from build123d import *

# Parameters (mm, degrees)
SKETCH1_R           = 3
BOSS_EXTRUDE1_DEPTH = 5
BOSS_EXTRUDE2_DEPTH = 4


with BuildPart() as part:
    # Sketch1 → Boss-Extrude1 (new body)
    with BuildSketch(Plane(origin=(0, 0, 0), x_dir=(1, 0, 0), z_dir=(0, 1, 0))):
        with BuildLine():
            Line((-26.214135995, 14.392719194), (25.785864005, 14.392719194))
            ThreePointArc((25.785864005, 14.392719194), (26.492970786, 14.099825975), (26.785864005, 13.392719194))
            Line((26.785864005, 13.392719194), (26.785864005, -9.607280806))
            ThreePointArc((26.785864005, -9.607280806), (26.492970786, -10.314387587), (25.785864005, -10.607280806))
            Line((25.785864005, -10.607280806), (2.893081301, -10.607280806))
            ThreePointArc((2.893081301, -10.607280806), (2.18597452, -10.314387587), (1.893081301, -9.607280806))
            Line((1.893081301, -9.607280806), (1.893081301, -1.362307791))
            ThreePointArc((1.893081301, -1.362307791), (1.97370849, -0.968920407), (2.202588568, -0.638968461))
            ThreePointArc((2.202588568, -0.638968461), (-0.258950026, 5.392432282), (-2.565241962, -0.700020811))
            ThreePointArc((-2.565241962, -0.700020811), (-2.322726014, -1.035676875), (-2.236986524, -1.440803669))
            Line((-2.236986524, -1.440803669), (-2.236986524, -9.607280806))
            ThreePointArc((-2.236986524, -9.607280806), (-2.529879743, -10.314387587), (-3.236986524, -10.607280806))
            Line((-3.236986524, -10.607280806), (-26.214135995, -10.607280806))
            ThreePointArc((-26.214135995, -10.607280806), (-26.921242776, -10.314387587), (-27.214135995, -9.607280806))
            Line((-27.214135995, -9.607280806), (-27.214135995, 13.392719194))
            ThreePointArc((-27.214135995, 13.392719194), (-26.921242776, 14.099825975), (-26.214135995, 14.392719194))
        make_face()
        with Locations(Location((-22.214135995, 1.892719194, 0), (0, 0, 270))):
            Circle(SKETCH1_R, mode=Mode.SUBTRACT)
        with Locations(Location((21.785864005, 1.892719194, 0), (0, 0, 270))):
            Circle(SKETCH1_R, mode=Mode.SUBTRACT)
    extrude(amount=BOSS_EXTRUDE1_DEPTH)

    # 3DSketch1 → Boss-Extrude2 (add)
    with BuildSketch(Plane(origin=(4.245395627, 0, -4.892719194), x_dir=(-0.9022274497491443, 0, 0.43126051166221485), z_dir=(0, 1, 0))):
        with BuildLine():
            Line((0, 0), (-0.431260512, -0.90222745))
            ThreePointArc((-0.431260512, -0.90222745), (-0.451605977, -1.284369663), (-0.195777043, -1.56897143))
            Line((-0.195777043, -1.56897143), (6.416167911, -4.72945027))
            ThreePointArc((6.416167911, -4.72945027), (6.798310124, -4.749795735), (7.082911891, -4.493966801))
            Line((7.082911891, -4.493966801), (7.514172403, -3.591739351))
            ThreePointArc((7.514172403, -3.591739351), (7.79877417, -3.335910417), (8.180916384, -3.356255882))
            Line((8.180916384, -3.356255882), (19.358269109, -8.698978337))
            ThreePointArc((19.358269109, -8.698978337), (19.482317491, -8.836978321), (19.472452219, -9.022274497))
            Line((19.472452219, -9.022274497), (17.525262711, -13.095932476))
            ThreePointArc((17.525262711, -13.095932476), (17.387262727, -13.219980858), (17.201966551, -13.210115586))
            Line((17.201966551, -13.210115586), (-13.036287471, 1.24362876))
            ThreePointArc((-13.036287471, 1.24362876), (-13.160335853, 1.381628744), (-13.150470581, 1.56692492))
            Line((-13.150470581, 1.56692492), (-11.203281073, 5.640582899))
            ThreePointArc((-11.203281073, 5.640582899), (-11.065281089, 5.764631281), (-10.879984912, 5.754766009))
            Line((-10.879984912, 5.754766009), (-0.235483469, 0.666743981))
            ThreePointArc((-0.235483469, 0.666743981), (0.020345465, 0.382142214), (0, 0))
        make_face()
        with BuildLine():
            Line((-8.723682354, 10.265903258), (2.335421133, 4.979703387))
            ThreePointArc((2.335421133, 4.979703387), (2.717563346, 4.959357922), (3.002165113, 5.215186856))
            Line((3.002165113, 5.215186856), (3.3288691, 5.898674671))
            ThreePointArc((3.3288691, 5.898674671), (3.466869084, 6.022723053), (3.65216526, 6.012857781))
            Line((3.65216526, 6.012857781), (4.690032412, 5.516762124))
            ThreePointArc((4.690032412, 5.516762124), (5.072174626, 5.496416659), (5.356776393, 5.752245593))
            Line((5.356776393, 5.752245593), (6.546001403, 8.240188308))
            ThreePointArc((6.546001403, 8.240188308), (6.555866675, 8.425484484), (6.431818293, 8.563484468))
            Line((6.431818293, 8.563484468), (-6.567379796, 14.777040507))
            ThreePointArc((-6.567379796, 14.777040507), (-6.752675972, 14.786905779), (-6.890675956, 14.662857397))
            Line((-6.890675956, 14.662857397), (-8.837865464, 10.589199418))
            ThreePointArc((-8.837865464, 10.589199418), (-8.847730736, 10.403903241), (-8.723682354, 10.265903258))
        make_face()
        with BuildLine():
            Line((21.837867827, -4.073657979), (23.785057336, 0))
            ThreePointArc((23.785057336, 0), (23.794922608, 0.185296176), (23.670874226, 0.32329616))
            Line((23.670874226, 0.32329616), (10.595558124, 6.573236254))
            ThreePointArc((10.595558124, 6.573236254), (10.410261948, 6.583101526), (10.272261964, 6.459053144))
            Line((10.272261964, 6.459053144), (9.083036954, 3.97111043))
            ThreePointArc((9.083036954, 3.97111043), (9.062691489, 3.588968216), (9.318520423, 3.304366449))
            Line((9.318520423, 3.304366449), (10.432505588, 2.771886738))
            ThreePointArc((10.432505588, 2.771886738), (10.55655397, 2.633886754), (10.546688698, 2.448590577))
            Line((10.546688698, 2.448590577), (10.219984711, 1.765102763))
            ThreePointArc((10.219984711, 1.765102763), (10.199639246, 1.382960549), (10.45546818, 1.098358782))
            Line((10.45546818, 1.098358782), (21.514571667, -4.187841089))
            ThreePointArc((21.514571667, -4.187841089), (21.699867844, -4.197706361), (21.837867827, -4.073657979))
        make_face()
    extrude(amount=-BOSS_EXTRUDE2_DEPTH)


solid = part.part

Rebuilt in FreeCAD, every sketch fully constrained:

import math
import FreeCAD as App
import Part
import Sketcher

V = App.Vector
Q = App.Units.Quantity

doc = App.newDocument("Part")
body = doc.addObject("PartDesign::Body", "Body")

sketch1 = body.newObject("Sketcher::SketchObject", "Sketch")
sketch1.AttachmentSupport = (doc.getObject("XZ_Plane"), [""])
sketch1.MapMode = "FlatFace"
sketch1.addGeometry([
    Part.LineSegment(V(25.8, -14.4, 0), V(-26.2, -14.4, 0)),
    Part.ArcOfCircle(Part.Circle(V(-26.2, -13.4, 0), V(0, 0, 1), 1), math.radians(-180), math.radians(-90)),
    Part.LineSegment(V(-27.2, -13.4, 0), V(-27.2, 9.6, 0)),
    Part.ArcOfCircle(Part.Circle(V(-26.2, 9.6, 0), V(0, 0, 1), 1), math.radians(90), math.radians(180)),
    Part.LineSegment(V(-26.2, 10.6, 0), V(-3.2, 10.6, 0)),
    Part.ArcOfCircle(Part.Circle(V(-3.2, 9.6, 0), V(0, 0, 1), 1), math.radians(0), math.radians(90)),
    Part.LineSegment(V(-2.2, 9.6, 0), V(-2.2, 1.4, 0)),
    Part.ArcOfCircle(Part.Circle(V(-3.2, 1.4, 0), V(0, 0, 1), 1), math.radians(-48), math.radians(0)),
    Part.ArcOfCircle(Part.Circle(V(-0.2, -1.9, 0), V(0, 0, 1), 3.5), math.radians(132), math.radians(406)),
    Part.ArcOfCircle(Part.Circle(V(2.9, 1.4, 0), V(0, 0, 1), 1), math.radians(-180), math.radians(-134)),
    Part.LineSegment(V(1.9, 1.4, 0), V(1.9, 9.6, 0)),
    Part.ArcOfCircle(Part.Circle(V(2.9, 9.6, 0), V(0, 0, 1), 1), math.radians(90), math.radians(180)),
    Part.LineSegment(V(2.9, 10.6, 0), V(25.8, 10.6, 0)),
    Part.ArcOfCircle(Part.Circle(V(25.8, 9.6, 0), V(0, 0, 1), 1), math.radians(0), math.radians(90)),
    Part.LineSegment(V(26.8, 9.6, 0), V(26.8, -13.4, 0)),
    Part.ArcOfCircle(Part.Circle(V(25.8, -13.4, 0), V(0, 0, 1), 1), math.radians(-90), math.radians(0)),
    Part.Circle(V(21.8, -1.9, 0), V(0, 0, 1), 3),
    Part.Circle(V(-22.2, -1.9, 0), V(0, 0, 1), 3),
], False)
sketch1.addConstraint([
    Sketcher.Constraint("Tangent", 0, 2, 1, 2),
    Sketcher.Constraint("Tangent", 1, 1, 2, 1),
    Sketcher.Constraint("Tangent", 2, 2, 3, 2),
    Sketcher.Constraint("Tangent", 3, 1, 4, 1),
    Sketcher.Constraint("Tangent", 4, 2, 5, 2),
    Sketcher.Constraint("Tangent", 5, 1, 6, 1),
    Sketcher.Constraint("Tangent", 6, 2, 7, 2),
    Sketcher.Constraint("Tangent", 7, 1, 8, 1),
    Sketcher.Constraint("Tangent", 8, 2, 9, 2),
    Sketcher.Constraint("Tangent", 9, 1, 10, 1),
    Sketcher.Constraint("Tangent", 10, 2, 11, 2),
    Sketcher.Constraint("Tangent", 11, 1, 12, 1),
    Sketcher.Constraint("Tangent", 12, 2, 13, 2),
    Sketcher.Constraint("Tangent", 13, 1, 14, 1),
    Sketcher.Constraint("Tangent", 14, 2, 15, 2),
    Sketcher.Constraint("Tangent", 15, 1, 0, 1),
    Sketcher.Constraint("Horizontal", 0),
    Sketcher.Constraint("Vertical", 2),
    Sketcher.Constraint("Horizontal", 4),
    Sketcher.Constraint("Vertical", 6),
    Sketcher.Constraint("Vertical", 10),
    Sketcher.Constraint("Horizontal", 12),
    Sketcher.Constraint("Vertical", 14),
    Sketcher.Constraint("Equal", 1, 3),
    Sketcher.Constraint("Equal", 3, 5),
    Sketcher.Constraint("Equal", 5, 7),
    Sketcher.Constraint("Equal", 7, 9),
    Sketcher.Constraint("Equal", 9, 11),
    Sketcher.Constraint("Equal", 11, 13),
    Sketcher.Constraint("Equal", 13, 15),
    Sketcher.Constraint("Equal", 16, 17),
    Sketcher.Constraint("Horizontal", 5, 3, 11, 3),
    Sketcher.Constraint("Horizontal", 8, 3, 16, 3),
    Sketcher.Constraint("Horizontal", 16, 3, 17, 3),
    Sketcher.Constraint("Diameter", 16, Q("6 mm")),
    Sketcher.Constraint("Radius", 1, Q("1 mm")),
    Sketcher.Constraint("Radius", 8, Q("3.5 mm")),
    Sketcher.Constraint("DistanceX", 0, 2, 0, 1, Q("52 mm")),
    Sketcher.Constraint("DistanceY", 2, 1, 2, 2, Q("23 mm")),
    Sketcher.Constraint("DistanceX", 1, 3, 8, 3, Q("26 mm")),
    Sketcher.Constraint("DistanceX", 16, 3, 13, 3, Q("4 mm")),
    Sketcher.Constraint("DistanceX", 1, 3, 17, 3, Q("4 mm")),
    Sketcher.Constraint("DistanceY", 8, 3, 5, 3, Q("11.5 mm")),
    Sketcher.Constraint("DistanceX", 4, 1, 4, 2, Q("22.977149 mm")),
    Sketcher.Constraint("DistanceX", 12, 1, 12, 2, Q("22.892783 mm")),
    Sketcher.Constraint("DistanceY", 1, 3, -1, 1, Q("13.392719 mm")),
    Sketcher.Constraint("DistanceX", -1, 1, 9, 3, Q("2.893081 mm")),
])
pad1 = body.newObject("PartDesign::Pad", "Pad")
pad1.Profile = sketch1
pad1.Length = 5
pad1.Reversed = True

sketch2 = body.newObject("Sketcher::SketchObject", "Sketch001")
sketch2.AttachmentSupport = (doc.getObject("XZ_Plane"), [""])
sketch2.MapMode = "FlatFace"
sketch2.addGeometry([
    Part.LineSegment(V(4.25, -5.89, 0), V(4.25, -4.89, 0)),
    Part.ArcOfCircle(Part.Circle(V(4.75, -4.89, 0), V(0, 0, 1), 0.5), math.radians(90), math.radians(180)),
    Part.LineSegment(V(4.75, -4.39, 0), V(16.54, -4.39, 0)),
    Part.ArcOfCircle(Part.Circle(V(16.54, -4.64, 0), V(0, 0, 1), 0.24), math.radians(0), math.radians(90)),
    Part.LineSegment(V(16.79, -4.64, 0), V(16.79, -9.15, 0)),
    Part.ArcOfCircle(Part.Circle(V(16.54, -9.15, 0), V(0, 0, 1), 0.24), math.radians(-90), math.radians(0)),
    Part.LineSegment(V(16.54, -9.39, 0), V(-16.97, -9.39, 0)),
    Part.ArcOfCircle(Part.Circle(V(-16.97, -9.15, 0), V(0, 0, 1), 0.24), math.radians(-180), math.radians(-90)),
    Part.LineSegment(V(-17.21, -9.15, 0), V(-17.21, -4.64, 0)),
    Part.ArcOfCircle(Part.Circle(V(-16.97, -4.64, 0), V(0, 0, 1), 0.24), math.radians(90), math.radians(180)),
    Part.LineSegment(V(-16.97, -4.39, 0), V(-4.58, -4.39, 0)),
    Part.ArcOfCircle(Part.Circle(V(-4.58, -4.89, 0), V(0, 0, 1), 0.5), math.radians(0), math.radians(90)),
    Part.LineSegment(V(-4.08, -4.89, 0), V(-4.08, -5.89, 0)),
    Part.ArcOfCircle(Part.Circle(V(-3.58, -5.89, 0), V(0, 0, 1), 0.5), math.radians(180), math.radians(270)),
    Part.LineSegment(V(-3.58, -6.39, 0), V(3.75, -6.39, 0)),
    Part.ArcOfCircle(Part.Circle(V(3.75, -5.89, 0), V(0, 0, 1), 0.5), math.radians(-90), math.radians(0)),
    Part.LineSegment(V(16.54, 0.61, 0), V(4.29, 0.61, 0)),
    Part.ArcOfCircle(Part.Circle(V(4.29, 1.11, 0), V(0, 0, 1), 0.5), math.radians(180), math.radians(270)),
    Part.LineSegment(V(3.79, 1.11, 0), V(3.79, 1.86, 0)),
    Part.ArcOfCircle(Part.Circle(V(3.54, 1.86, 0), V(0, 0, 1), 0.24), math.radians(0), math.radians(90)),
    Part.LineSegment(V(3.54, 2.11, 0), V(2.39, 2.11, 0)),
    Part.ArcOfCircle(Part.Circle(V(2.39, 2.61, 0), V(0, 0, 1), 0.5), math.radians(-180), math.radians(-90)),
    Part.LineSegment(V(1.89, 2.61, 0), V(1.89, 5.36, 0)),
    Part.ArcOfCircle(Part.Circle(V(2.14, 5.36, 0), V(0, 0, 1), 0.24), math.radians(90), math.radians(180)),
    Part.LineSegment(V(2.14, 5.61, 0), V(16.54, 5.61, 0)),
    Part.ArcOfCircle(Part.Circle(V(16.54, 5.36, 0), V(0, 0, 1), 0.24), math.radians(0), math.radians(90)),
    Part.LineSegment(V(16.79, 5.36, 0), V(16.79, 0.85, 0)),
    Part.ArcOfCircle(Part.Circle(V(16.54, 0.85, 0), V(0, 0, 1), 0.24), math.radians(-90), math.radians(0)),
    Part.LineSegment(V(-17.21, 0.85, 0), V(-17.21, 5.36, 0)),
    Part.ArcOfCircle(Part.Circle(V(-16.97, 5.36, 0), V(0, 0, 1), 0.24), math.radians(90), math.radians(180)),
    Part.LineSegment(V(-16.97, 5.61, 0), V(-2.48, 5.61, 0)),
    Part.ArcOfCircle(Part.Circle(V(-2.48, 5.36, 0), V(0, 0, 1), 0.24), math.radians(0), math.radians(90)),
    Part.LineSegment(V(-2.24, 5.36, 0), V(-2.24, 2.61, 0)),
    Part.ArcOfCircle(Part.Circle(V(-2.74, 2.61, 0), V(0, 0, 1), 0.5), math.radians(-90), math.radians(0)),
    Part.LineSegment(V(-2.74, 2.11, 0), V(-3.97, 2.11, 0)),
    Part.ArcOfCircle(Part.Circle(V(-3.97, 1.86, 0), V(0, 0, 1), 0.24), math.radians(90), math.radians(180)),
    Part.LineSegment(V(-4.21, 1.86, 0), V(-4.21, 1.11, 0)),
    Part.ArcOfCircle(Part.Circle(V(-4.71, 1.11, 0), V(0, 0, 1), 0.5), math.radians(-90), math.radians(0)),
    Part.LineSegment(V(-4.71, 0.61, 0), V(-16.97, 0.61, 0)),
    Part.ArcOfCircle(Part.Circle(V(-16.97, 0.85, 0), V(0, 0, 1), 0.24), math.radians(180), math.radians(270)),
], False)
sketch2.addConstraint([
    Sketcher.Constraint("Tangent", 0, 2, 1, 2),
    Sketcher.Constraint("Tangent", 1, 1, 2, 1),
    Sketcher.Constraint("Tangent", 2, 2, 3, 2),
    Sketcher.Constraint("Tangent", 3, 1, 4, 1),
    Sketcher.Constraint("Tangent", 4, 2, 5, 2),
    Sketcher.Constraint("Tangent", 5, 1, 6, 1),
    Sketcher.Constraint("Tangent", 6, 2, 7, 2),
    Sketcher.Constraint("Tangent", 7, 1, 8, 1),
    Sketcher.Constraint("Tangent", 8, 2, 9, 2),
    Sketcher.Constraint("Tangent", 9, 1, 10, 1),
    Sketcher.Constraint("Tangent", 10, 2, 11, 2),
    Sketcher.Constraint("Tangent", 11, 1, 12, 1),
    Sketcher.Constraint("Tangent", 12, 2, 13, 1),
    Sketcher.Constraint("Tangent", 13, 2, 14, 1),
    Sketcher.Constraint("Tangent", 14, 2, 15, 1),
    Sketcher.Constraint("Tangent", 15, 2, 0, 1),
    Sketcher.Constraint("Tangent", 16, 2, 17, 2),
    Sketcher.Constraint("Tangent", 17, 1, 18, 1),
    Sketcher.Constraint("Tangent", 18, 2, 19, 1),
    Sketcher.Constraint("Tangent", 19, 2, 20, 1),
    Sketcher.Constraint("Tangent", 20, 2, 21, 2),
    Sketcher.Constraint("Tangent", 21, 1, 22, 1),
    Sketcher.Constraint("Tangent", 22, 2, 23, 2),
    Sketcher.Constraint("Tangent", 23, 1, 24, 1),
    Sketcher.Constraint("Tangent", 24, 2, 25, 2),
    Sketcher.Constraint("Tangent", 25, 1, 26, 1),
    Sketcher.Constraint("Tangent", 26, 2, 27, 2),
    Sketcher.Constraint("Tangent", 27, 1, 16, 1),
    Sketcher.Constraint("Tangent", 28, 2, 29, 2),
    Sketcher.Constraint("Tangent", 29, 1, 30, 1),
    Sketcher.Constraint("Tangent", 30, 2, 31, 2),
    Sketcher.Constraint("Tangent", 31, 1, 32, 1),
    Sketcher.Constraint("Tangent", 32, 2, 33, 2),
    Sketcher.Constraint("Tangent", 33, 1, 34, 1),
    Sketcher.Constraint("Tangent", 34, 2, 35, 1),
    Sketcher.Constraint("Tangent", 35, 2, 36, 1),
    Sketcher.Constraint("Tangent", 36, 2, 37, 2),
    Sketcher.Constraint("Tangent", 37, 1, 38, 1),
    Sketcher.Constraint("Tangent", 38, 2, 39, 2),
    Sketcher.Constraint("Tangent", 39, 1, 28, 1),
    Sketcher.Constraint("Vertical", 0),
    Sketcher.Constraint("Horizontal", 2),
    Sketcher.Constraint("Vertical", 4),
    Sketcher.Constraint("Horizontal", 6),
    Sketcher.Constraint("Vertical", 8),
    Sketcher.Constraint("Horizontal", 10),
    Sketcher.Constraint("Vertical", 12),
    Sketcher.Constraint("Horizontal", 14),
    Sketcher.Constraint("Horizontal", 16),
    Sketcher.Constraint("Vertical", 18),
    Sketcher.Constraint("Horizontal", 20),
    Sketcher.Constraint("Vertical", 22),
    Sketcher.Constraint("Horizontal", 24),
    Sketcher.Constraint("Vertical", 26),
    Sketcher.Constraint("Vertical", 28),
    Sketcher.Constraint("Horizontal", 30),
    Sketcher.Constraint("Vertical", 32),
    Sketcher.Constraint("Horizontal", 34),
    Sketcher.Constraint("Vertical", 36),
    Sketcher.Constraint("Horizontal", 38),
    Sketcher.Constraint("Equal", 3, 5),
    Sketcher.Constraint("Equal", 5, 7),
    Sketcher.Constraint("Equal", 7, 9),
    Sketcher.Constraint("Equal", 1, 11),
    Sketcher.Constraint("Equal", 11, 13),
    Sketcher.Constraint("Equal", 13, 15),
    Sketcher.Constraint("Equal", 15, 17),
    Sketcher.Constraint("Equal", 9, 19),
    Sketcher.Constraint("Equal", 17, 21),
    Sketcher.Constraint("Equal", 19, 23),
    Sketcher.Constraint("Equal", 23, 25),
    Sketcher.Constraint("Equal", 25, 27),
    Sketcher.Constraint("Equal", 27, 29),
    Sketcher.Constraint("Equal", 29, 31),
    Sketcher.Constraint("Equal", 21, 33),
    Sketcher.Constraint("Equal", 31, 35),
    Sketcher.Constraint("Equal", 33, 37),
    Sketcher.Constraint("Equal", 35, 39),
    Sketcher.Constraint("Horizontal", 3, 3, 9, 3),
    Sketcher.Constraint("Horizontal", 25, 3, 29, 3),
    Sketcher.Constraint("Horizontal", 21, 3, 33, 3),
    Sketcher.Constraint("Horizontal", 17, 3, 37, 3),
    Sketcher.Constraint("Vertical", 5, 3, 25, 3),
    Sketcher.Constraint("Vertical", 9, 3, 29, 3),
    Sketcher.Constraint("Equal", 16, 38),
    Sketcher.Constraint("Equal", 8, 26),
    Sketcher.Constraint("Radius", 1, Q("0.5 mm")),
    Sketcher.Constraint("DistanceY", 0, 1, 0, 2, Q("1 mm")),
    Sketcher.Constraint("DistanceY", 1, 3, 17, 3, Q("6 mm")),
    Sketcher.Constraint("DistanceY", 3, 3, 25, 3, Q("10 mm")),
    Sketcher.Constraint("DistanceX", 19, 3, 25, 3, Q("13 mm")),
    Sketcher.Constraint("DistanceY", 10, 2, 33, 3, Q("7 mm")),
    Sketcher.Constraint("Radius", 3, Q("0.242444 mm")),
    Sketcher.Constraint("DistanceX", 10, 1, 10, 2, Q("12.38862 mm")),
    Sketcher.Constraint("DistanceX", 20, 2, 20, 1, Q("1.150339 mm")),
    Sketcher.Constraint("DistanceX", 30, 1, 30, 2, Q("14.492261 mm")),
    Sketcher.Constraint("DistanceX", 2, 1, 2, 2, Q("11.798024 mm")),
    Sketcher.Constraint("DistanceX", 6, 2, 6, 1, Q("33.515112 mm")),
    Sketcher.Constraint("DistanceY", 1, 3, -1, 1, Q("4.892719 mm")),
    Sketcher.Constraint("DistanceX", -1, 1, 3, 3, Q("16.54342 mm")),
])
pad2 = body.newObject("PartDesign::Pad", "Pad001")
pad2.Profile = sketch2
pad2.Length = 4

doc.recompute()
